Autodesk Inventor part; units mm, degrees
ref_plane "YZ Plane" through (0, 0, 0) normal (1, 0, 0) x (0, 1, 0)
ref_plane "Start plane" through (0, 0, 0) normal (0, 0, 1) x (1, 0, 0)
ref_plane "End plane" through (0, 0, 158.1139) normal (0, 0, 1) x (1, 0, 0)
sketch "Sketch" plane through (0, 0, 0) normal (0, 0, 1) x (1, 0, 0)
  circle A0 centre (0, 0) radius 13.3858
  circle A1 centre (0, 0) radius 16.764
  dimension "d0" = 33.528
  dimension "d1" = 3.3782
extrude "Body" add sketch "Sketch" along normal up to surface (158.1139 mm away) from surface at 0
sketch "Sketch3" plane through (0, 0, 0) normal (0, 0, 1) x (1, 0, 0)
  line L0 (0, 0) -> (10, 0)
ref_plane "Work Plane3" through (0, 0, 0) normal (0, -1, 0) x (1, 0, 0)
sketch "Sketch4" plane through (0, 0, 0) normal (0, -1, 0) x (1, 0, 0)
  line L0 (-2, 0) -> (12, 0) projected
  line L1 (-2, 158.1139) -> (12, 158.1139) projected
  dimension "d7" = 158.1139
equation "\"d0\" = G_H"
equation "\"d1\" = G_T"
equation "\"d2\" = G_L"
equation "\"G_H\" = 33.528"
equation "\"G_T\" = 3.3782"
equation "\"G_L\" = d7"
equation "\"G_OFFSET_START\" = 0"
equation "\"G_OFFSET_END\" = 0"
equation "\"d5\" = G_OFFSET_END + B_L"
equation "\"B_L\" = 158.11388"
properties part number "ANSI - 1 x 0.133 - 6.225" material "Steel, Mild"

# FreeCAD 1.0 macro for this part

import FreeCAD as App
import Part
import Sketcher

V = App.Vector
Q = App.Units.Quantity

doc = App.newDocument("Part")
body = doc.addObject("PartDesign::Body", "Body")

# Sketch on XY plane
sketch1 = body.newObject("Sketcher::SketchObject", "Sketch")
sketch1.AttachmentSupport = (doc.getObject("XY_Plane"), [""])
sketch1.MapMode = "FlatFace"
sketch1.addGeometry(Part.Circle(V(0, 0, 0), V(0, 0, 1), 17), False)
sketch1.addGeometry(Part.Circle(V(0, 0, 0), V(0, 0, 1), 13), False)
sketch1.addConstraint(Sketcher.Constraint("Coincident", 0, 3, -1, 1))
sketch1.addConstraint(Sketcher.Constraint("Coincident", 1, 3, -1, 1))
sketch1.addConstraint(Sketcher.Constraint("Diameter", 0, Q("1.32 in")))
sketch1.addConstraint(Sketcher.Constraint("Diameter", 1, Q("1.054 in")))
pad1 = body.newObject("PartDesign::Pad", "Pad")
pad1.Profile = sketch1
pad1.Length = 158.1139

doc.recompute()
